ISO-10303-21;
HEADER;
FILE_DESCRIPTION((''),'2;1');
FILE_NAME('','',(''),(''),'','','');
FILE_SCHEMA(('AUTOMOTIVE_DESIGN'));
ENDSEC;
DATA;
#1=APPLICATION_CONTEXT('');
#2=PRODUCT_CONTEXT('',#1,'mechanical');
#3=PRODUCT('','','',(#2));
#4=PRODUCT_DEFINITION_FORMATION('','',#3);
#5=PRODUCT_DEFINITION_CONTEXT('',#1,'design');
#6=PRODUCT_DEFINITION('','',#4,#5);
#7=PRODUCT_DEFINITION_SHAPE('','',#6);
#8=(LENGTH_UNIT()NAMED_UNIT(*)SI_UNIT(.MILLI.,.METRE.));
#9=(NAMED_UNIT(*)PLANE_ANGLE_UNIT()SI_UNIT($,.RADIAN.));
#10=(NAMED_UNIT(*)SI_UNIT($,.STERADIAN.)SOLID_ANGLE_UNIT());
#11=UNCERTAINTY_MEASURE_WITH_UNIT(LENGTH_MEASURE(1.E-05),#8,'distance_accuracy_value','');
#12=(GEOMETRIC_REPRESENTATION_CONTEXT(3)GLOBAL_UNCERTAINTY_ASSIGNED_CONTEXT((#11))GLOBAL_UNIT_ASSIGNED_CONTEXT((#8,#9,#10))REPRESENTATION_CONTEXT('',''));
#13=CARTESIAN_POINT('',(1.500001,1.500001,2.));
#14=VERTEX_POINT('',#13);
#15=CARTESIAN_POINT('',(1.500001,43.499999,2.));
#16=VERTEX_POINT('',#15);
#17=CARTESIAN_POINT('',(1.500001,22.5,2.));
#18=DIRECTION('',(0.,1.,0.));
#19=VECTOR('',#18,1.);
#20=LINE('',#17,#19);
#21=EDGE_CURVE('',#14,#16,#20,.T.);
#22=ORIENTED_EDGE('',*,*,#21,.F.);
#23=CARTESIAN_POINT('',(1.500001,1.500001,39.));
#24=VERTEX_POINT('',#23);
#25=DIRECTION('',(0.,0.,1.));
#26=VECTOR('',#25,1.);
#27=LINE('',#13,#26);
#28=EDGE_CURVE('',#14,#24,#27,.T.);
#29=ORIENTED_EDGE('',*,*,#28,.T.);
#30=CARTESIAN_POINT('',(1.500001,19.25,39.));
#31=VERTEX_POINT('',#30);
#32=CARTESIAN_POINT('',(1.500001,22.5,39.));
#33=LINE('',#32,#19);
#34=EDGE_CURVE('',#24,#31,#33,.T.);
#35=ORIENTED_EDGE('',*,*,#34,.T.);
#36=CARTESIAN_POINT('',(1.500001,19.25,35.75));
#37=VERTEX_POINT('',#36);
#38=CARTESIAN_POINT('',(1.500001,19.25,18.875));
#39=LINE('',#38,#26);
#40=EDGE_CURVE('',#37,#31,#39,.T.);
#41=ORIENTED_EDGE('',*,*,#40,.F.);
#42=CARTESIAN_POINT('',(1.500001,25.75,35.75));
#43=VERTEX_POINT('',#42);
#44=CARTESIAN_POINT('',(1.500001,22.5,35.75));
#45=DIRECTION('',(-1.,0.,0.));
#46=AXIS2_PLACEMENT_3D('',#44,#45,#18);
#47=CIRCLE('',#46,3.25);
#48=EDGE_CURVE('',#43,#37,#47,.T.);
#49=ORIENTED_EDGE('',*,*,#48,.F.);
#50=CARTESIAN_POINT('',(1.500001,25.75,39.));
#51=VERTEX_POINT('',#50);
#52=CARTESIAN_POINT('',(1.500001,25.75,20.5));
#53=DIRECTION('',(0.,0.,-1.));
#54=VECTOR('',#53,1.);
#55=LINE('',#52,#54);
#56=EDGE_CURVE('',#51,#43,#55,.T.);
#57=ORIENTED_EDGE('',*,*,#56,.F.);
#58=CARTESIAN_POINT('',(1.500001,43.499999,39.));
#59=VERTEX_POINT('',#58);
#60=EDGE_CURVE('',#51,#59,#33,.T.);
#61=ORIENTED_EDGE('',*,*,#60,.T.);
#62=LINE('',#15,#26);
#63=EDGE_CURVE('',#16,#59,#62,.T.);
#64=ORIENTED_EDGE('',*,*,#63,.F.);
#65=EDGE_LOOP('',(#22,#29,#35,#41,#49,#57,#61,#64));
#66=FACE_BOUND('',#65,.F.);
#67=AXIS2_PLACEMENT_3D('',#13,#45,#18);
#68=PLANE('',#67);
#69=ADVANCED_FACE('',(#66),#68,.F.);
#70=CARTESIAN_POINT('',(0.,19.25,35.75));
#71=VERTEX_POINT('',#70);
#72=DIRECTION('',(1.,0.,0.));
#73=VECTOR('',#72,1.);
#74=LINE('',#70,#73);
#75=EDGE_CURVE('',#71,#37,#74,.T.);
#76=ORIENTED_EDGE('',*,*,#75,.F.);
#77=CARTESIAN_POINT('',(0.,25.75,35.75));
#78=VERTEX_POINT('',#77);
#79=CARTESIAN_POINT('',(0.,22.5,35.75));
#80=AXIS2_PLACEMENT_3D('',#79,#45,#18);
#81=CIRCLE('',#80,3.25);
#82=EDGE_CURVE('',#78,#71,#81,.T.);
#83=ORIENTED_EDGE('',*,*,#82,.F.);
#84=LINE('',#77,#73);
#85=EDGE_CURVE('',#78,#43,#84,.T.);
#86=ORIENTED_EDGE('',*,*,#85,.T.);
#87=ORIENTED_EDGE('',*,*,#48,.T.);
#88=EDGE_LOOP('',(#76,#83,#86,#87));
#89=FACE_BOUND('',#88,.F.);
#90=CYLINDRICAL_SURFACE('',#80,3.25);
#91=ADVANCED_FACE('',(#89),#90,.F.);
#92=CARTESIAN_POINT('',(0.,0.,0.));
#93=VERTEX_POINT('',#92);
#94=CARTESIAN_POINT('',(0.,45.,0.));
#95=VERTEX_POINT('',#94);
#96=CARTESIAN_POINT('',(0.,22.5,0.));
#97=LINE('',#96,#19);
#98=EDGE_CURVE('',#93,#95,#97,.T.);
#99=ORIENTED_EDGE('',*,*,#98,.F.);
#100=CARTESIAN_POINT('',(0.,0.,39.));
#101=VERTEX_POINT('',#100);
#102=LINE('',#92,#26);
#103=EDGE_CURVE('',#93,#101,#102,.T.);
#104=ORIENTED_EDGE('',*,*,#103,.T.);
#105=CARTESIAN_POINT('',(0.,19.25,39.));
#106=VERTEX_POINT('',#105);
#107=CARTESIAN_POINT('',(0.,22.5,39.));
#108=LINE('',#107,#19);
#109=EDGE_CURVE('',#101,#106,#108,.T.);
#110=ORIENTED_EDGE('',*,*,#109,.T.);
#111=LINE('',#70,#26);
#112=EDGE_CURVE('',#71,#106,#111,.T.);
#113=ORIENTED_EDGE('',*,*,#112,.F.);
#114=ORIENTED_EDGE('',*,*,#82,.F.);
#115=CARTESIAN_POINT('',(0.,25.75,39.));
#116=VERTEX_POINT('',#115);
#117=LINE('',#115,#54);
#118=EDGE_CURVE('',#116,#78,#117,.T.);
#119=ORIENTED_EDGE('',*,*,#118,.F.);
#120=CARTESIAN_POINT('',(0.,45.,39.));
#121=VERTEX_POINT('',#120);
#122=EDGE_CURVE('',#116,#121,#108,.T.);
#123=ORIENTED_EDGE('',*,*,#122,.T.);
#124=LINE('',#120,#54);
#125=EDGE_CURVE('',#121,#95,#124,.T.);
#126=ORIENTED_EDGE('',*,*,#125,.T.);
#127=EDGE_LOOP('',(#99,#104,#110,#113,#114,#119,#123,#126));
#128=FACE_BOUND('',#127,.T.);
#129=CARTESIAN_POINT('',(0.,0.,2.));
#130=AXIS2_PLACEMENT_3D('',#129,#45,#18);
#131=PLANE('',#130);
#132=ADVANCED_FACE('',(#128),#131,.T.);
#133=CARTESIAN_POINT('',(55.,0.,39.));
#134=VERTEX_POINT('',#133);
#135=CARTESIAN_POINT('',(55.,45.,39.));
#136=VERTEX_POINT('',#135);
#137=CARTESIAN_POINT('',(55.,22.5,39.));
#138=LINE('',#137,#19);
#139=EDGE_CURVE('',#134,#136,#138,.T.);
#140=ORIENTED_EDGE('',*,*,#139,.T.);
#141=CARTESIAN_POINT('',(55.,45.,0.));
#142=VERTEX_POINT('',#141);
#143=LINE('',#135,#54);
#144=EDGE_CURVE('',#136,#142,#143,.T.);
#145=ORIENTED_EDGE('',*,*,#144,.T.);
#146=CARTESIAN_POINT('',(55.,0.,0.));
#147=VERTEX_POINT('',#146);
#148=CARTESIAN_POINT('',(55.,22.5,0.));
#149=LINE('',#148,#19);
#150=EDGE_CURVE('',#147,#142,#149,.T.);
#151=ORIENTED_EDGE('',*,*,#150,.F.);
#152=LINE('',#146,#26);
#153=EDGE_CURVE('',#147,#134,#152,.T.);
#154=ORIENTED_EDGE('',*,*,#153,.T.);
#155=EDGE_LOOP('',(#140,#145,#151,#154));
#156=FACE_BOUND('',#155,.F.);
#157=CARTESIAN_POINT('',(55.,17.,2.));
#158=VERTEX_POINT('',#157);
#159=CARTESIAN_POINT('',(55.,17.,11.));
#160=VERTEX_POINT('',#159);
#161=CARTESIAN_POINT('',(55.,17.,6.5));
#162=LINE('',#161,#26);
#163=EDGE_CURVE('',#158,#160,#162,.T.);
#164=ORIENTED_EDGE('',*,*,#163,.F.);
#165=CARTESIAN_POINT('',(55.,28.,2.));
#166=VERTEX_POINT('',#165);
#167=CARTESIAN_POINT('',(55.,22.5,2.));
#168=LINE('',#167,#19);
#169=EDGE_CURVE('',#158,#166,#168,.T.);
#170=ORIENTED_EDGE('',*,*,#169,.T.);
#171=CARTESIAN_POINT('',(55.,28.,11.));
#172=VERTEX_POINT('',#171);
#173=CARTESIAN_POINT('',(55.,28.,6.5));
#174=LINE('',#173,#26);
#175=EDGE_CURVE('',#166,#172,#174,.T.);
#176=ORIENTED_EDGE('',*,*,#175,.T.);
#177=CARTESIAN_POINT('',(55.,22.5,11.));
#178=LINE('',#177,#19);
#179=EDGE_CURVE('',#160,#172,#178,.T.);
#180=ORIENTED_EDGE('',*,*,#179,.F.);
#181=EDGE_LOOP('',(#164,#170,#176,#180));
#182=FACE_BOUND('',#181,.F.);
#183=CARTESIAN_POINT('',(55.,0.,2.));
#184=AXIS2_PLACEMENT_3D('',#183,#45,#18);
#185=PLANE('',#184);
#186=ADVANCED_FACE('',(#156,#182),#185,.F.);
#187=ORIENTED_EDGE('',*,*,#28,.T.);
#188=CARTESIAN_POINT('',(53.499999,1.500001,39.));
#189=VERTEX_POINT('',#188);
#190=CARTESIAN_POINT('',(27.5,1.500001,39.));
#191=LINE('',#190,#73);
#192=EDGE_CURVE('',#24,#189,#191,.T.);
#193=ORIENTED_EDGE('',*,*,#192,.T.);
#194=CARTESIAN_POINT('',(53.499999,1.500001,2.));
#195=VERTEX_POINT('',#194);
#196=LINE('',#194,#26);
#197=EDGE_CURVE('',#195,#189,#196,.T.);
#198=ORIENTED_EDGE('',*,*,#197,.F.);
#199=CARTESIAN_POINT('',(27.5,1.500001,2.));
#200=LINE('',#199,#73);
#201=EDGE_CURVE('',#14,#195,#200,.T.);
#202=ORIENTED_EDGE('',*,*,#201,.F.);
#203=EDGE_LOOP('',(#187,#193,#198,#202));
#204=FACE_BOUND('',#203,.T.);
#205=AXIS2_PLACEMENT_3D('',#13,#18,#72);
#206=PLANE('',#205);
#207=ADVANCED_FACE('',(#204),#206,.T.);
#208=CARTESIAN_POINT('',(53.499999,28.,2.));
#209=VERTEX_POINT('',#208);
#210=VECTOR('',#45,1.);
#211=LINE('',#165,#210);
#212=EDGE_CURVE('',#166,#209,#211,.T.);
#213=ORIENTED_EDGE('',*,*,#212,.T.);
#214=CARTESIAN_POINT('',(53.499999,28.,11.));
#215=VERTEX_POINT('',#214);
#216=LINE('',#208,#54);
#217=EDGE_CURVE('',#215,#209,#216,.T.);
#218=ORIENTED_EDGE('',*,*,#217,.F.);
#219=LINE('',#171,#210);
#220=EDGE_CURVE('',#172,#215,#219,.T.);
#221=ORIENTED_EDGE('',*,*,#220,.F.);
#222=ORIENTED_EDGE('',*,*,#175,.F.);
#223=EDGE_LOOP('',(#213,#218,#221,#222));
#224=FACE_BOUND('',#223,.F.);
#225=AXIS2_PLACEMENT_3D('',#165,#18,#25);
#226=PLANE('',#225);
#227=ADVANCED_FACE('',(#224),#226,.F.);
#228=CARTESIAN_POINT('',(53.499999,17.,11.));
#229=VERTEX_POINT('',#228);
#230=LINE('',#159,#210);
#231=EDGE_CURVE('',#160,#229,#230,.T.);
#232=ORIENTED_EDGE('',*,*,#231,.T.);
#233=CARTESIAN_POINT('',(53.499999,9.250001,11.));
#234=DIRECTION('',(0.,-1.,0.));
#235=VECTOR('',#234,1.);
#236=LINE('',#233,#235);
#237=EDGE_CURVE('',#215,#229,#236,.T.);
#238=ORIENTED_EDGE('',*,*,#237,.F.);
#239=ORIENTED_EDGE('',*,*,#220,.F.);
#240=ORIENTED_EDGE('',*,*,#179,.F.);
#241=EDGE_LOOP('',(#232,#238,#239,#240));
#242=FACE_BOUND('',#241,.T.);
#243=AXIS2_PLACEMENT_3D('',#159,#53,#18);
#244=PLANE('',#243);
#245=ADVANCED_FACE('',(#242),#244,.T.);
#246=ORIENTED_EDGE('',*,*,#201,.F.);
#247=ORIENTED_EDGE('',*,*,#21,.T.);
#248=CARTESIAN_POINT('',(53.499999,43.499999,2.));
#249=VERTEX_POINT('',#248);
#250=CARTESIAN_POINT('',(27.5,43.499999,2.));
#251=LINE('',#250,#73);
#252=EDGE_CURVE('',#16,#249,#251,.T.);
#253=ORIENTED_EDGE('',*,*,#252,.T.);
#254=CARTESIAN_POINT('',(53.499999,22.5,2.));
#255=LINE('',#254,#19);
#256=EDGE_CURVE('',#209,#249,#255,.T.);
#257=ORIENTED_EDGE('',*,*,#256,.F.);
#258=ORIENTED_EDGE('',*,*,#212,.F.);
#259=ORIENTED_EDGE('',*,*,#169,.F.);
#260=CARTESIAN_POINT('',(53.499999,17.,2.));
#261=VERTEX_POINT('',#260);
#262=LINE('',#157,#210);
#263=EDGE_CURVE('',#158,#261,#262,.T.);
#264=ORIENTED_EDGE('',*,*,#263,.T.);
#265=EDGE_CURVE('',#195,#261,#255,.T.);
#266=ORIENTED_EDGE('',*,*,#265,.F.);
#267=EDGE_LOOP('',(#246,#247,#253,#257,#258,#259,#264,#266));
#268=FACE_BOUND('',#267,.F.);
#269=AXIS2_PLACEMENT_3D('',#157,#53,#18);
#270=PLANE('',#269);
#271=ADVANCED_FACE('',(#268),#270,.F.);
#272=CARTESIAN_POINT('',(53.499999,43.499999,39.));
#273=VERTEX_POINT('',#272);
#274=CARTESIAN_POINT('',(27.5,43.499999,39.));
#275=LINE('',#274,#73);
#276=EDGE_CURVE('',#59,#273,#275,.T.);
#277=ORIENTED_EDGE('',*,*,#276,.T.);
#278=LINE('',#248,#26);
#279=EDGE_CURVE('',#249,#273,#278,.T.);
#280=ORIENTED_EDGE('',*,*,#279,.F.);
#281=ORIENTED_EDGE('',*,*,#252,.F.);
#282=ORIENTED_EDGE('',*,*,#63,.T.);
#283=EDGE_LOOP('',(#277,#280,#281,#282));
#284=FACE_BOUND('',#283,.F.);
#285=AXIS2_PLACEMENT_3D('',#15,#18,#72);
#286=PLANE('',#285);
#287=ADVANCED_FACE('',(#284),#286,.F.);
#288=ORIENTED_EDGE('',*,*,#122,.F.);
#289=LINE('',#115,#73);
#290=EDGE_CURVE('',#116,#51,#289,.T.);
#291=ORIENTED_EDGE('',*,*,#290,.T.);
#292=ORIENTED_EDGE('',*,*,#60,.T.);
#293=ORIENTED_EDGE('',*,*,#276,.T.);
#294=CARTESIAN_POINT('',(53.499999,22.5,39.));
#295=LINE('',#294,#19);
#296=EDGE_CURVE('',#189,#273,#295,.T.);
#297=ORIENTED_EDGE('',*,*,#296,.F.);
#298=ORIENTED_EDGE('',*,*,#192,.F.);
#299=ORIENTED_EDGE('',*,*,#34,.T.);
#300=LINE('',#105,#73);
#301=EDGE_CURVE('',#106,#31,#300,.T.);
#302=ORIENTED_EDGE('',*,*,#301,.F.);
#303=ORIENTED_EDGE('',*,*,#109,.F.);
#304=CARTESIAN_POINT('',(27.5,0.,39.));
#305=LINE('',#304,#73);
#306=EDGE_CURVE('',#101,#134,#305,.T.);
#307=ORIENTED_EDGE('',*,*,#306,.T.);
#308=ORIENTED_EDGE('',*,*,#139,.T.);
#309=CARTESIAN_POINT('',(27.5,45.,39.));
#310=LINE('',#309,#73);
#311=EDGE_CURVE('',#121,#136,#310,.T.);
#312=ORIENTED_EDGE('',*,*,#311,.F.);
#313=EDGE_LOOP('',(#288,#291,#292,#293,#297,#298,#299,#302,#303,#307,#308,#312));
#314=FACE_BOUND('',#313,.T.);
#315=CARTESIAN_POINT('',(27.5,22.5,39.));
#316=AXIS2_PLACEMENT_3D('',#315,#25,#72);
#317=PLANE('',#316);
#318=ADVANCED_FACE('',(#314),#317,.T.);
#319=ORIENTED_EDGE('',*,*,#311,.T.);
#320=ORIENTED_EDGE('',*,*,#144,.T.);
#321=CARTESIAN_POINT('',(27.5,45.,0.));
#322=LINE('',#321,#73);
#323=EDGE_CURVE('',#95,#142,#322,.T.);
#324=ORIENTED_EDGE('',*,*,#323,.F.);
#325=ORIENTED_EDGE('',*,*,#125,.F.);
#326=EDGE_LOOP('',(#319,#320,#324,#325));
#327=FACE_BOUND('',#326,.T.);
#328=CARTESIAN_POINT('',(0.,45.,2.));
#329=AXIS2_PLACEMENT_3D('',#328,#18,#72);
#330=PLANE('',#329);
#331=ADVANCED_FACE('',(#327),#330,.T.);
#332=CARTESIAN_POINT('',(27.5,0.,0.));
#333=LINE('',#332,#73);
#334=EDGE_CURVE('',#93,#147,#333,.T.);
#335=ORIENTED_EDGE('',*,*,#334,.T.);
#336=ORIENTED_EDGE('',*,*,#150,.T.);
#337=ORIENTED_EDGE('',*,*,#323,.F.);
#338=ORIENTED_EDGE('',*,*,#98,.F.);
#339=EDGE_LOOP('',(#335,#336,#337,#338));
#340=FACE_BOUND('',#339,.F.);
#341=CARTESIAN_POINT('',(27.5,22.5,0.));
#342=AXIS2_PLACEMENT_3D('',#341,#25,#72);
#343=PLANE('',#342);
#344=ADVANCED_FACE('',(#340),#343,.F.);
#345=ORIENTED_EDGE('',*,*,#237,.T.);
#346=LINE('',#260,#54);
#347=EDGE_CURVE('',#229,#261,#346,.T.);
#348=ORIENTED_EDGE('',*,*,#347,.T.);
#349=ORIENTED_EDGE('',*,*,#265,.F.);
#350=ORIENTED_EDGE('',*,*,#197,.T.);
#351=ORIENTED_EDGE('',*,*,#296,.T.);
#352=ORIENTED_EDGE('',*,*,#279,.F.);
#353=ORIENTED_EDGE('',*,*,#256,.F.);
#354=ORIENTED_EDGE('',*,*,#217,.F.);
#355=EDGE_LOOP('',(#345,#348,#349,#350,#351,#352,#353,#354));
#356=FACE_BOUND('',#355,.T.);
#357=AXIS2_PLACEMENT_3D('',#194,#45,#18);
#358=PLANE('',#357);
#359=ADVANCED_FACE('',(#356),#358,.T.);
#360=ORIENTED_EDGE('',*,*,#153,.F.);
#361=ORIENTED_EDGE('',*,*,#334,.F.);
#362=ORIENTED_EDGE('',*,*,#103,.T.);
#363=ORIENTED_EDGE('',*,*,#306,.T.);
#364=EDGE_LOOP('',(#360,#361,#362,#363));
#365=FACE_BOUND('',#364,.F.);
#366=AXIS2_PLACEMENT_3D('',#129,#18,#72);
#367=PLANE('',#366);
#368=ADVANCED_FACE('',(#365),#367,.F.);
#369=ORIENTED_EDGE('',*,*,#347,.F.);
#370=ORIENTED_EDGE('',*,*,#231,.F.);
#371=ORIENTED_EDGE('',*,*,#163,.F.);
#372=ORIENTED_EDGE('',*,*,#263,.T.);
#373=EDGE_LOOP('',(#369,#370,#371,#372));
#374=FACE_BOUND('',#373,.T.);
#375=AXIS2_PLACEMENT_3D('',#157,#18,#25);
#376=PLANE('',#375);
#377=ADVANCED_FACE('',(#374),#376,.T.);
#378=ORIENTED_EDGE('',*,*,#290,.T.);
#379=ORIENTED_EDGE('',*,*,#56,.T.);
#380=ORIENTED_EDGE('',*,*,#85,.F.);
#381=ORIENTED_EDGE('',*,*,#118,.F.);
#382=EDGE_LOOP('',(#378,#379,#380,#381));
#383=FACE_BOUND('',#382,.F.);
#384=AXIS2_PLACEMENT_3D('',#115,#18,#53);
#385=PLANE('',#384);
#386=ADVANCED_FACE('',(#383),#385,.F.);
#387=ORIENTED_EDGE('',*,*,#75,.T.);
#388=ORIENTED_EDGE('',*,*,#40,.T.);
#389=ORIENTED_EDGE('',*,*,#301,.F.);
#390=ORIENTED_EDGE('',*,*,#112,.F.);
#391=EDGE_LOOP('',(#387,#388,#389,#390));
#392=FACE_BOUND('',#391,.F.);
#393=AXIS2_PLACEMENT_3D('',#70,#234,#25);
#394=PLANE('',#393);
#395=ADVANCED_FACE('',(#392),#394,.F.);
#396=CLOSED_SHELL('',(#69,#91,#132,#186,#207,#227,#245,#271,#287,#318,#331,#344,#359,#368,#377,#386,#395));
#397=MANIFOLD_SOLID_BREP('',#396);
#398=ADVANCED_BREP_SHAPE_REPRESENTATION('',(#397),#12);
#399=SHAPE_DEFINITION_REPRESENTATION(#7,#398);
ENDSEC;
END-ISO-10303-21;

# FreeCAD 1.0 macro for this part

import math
import FreeCAD as App
import Part
import Sketcher

V = App.Vector
Q = App.Units.Quantity


def add_polygon(sketch, points):
    """Adds a closed chain of lines whose ends are joined by coincident constraints."""
    first, n = sketch.GeometryCount, len(points)
    for a, b in zip(points, points[1:] + points[:1]):
        sketch.addGeometry(Part.LineSegment(App.Vector(*a, 0), App.Vector(*b, 0)), False)
    for i in range(n):
        sketch.addConstraint(Sketcher.Constraint("Coincident", first + i, 2, first + (i + 1) % n, 1))

doc = App.newDocument("Part")
params = doc.addObject("Spreadsheet::Sheet", "Params")
for row, (alias, value) in enumerate([
    ("sketch1_width", "55 mm"),
    ("sketch1_height", "45 mm"),
    ("pad1_length", "2 mm"),
    ("sketch2_width", "55 mm"),
    ("sketch2_height", "45 mm"),
    ("pad2_length", "37 mm"),
    ("sketch3_radius", "3.25 mm"),
    ("sketch3_height", "3.25 mm"),
    ("pocket1_length", "25 mm"),
    ("sketch4_width", "11 mm"),
    ("sketch4_height", "9 mm"),
    ("pocket2_length", "25 mm"),
], start=1):
    params.set(f"A{row}", alias)
    params.set(f"B{row}", "=" + value)
    params.setAlias(f"B{row}", alias)

body = doc.addObject("PartDesign::Body", "Body")

sketch1 = body.newObject("Sketcher::SketchObject", "Sketch")
sketch1.AttachmentSupport = (doc.getObject("XY_Plane"), [""])
sketch1.MapMode = "FlatFace"
add_polygon(sketch1, [(0, 45), (0, 0), (55, 0), (55, 45)])
sketch1.addConstraint(Sketcher.Constraint("Vertical", 0))
sketch1.addConstraint(Sketcher.Constraint("Horizontal", 1))
sketch1.addConstraint(Sketcher.Constraint("Vertical", 2))
sketch1.addConstraint(Sketcher.Constraint("Horizontal", 3))
sketch1.addConstraint(Sketcher.Constraint("Coincident", 0, 2, -1, 1))
sketch1.addConstraint(Sketcher.Constraint("DistanceX", 1, 1, 1, 2, Q("55 mm")))
sketch1.addConstraint(Sketcher.Constraint("DistanceY", 0, 2, 0, 1, Q("45 mm")))
sketch1.setExpression("Constraints[9]", "Params.sketch1_width")
sketch1.setExpression("Constraints[10]", "Params.sketch1_height")
pad1 = body.newObject("PartDesign::Pad", "Pad")
pad1.Profile = sketch1
pad1.setExpression("Length", "Params.pad1_length")

sketch2 = body.newObject("Sketcher::SketchObject", "Sketch001")
sketch2.AttachmentSupport = (doc.getObject("XY_Plane"), [""])
sketch2.MapMode = "FlatFace"
sketch2.AttachmentOffset = App.Placement(V(0, 0, 2), App.Rotation())
add_polygon(sketch2, [(0, 45), (0, 0), (55, 0), (55, 45)])
add_polygon(sketch2, [(53, 2), (2, 2), (2, 43), (53, 43)])
sketch2.addConstraint(Sketcher.Constraint("Vertical", 0))
sketch2.addConstraint(Sketcher.Constraint("Horizontal", 1))
sketch2.addConstraint(Sketcher.Constraint("Vertical", 2))
sketch2.addConstraint(Sketcher.Constraint("Horizontal", 3))
sketch2.addConstraint(Sketcher.Constraint("Horizontal", 4))
sketch2.addConstraint(Sketcher.Constraint("Vertical", 5))
sketch2.addConstraint(Sketcher.Constraint("Horizontal", 6))
sketch2.addConstraint(Sketcher.Constraint("Vertical", 7))
sketch2.addConstraint(Sketcher.Constraint("Coincident", 0, 2, -1, 1))
sketch2.addConstraint(Sketcher.Constraint("DistanceX", 1, 1, 1, 2, Q("55 mm")))
sketch2.addConstraint(Sketcher.Constraint("DistanceY", 0, 2, 0, 1, Q("45 mm")))
sketch2.addConstraint(Sketcher.Constraint("DistanceX", -1, 1, 4, 2, Q("1.500001 mm")))
sketch2.addConstraint(Sketcher.Constraint("DistanceY", -1, 1, 4, 2, Q("1.500001 mm")))
sketch2.addConstraint(Sketcher.Constraint("DistanceY", -1, 1, 5, 2, Q("43.499999 mm")))
sketch2.addConstraint(Sketcher.Constraint("DistanceX", -1, 1, 6, 2, Q("53.499999 mm")))
sketch2.setExpression("Constraints[17]", "Params.sketch2_width")
sketch2.setExpression("Constraints[18]", "Params.sketch2_height")
pad2 = body.newObject("PartDesign::Pad", "Pad001")
pad2.Profile = sketch2
pad2.setExpression("Length", "Params.pad2_length")

sketch3 = body.newObject("Sketcher::SketchObject", "Sketch002")
sketch3.AttachmentSupport = (doc.getObject("YZ_Plane"), [""])
sketch3.MapMode = "FlatFace"
sketch3.addGeometry(Part.LineSegment(V(25.8, 39, 0), V(25.8, 35.8, 0)), False)
sketch3.addGeometry(Part.ArcOfCircle(Part.Circle(V(22.5, 35.8, 0), V(0, 0, 1), 3.2), math.radians(180), math.radians(360)), False)
sketch3.addGeometry(Part.LineSegment(V(19.2, 35.8, 0), V(19.2, 39, 0)), False)
sketch3.addGeometry(Part.LineSegment(V(19.2, 39, 0), V(25.8, 39, 0)), False)
sketch3.addConstraint(Sketcher.Constraint("Tangent", 0, 2, 1, 2))
sketch3.addConstraint(Sketcher.Constraint("Tangent", 1, 1, 2, 1))
sketch3.addConstraint(Sketcher.Constraint("Coincident", 2, 2, 3, 1))
sketch3.addConstraint(Sketcher.Constraint("Coincident", 3, 2, 0, 1))
sketch3.addConstraint(Sketcher.Constraint("Vertical", 0))
sketch3.addConstraint(Sketcher.Constraint("Vertical", 2))
sketch3.addConstraint(Sketcher.Constraint("Horizontal", 3))
sketch3.addConstraint(Sketcher.Constraint("Radius", 1, Q("3.25 mm")))
sketch3.addConstraint(Sketcher.Constraint("DistanceY", -1, 1, 2, 2, Q("39 mm")))
sketch3.addConstraint(Sketcher.Constraint("DistanceY", 0, 2, 0, 1, Q("3.25 mm")))
sketch3.addConstraint(Sketcher.Constraint("DistanceX", -1, 1, 1, 3, Q("22.5 mm")))
sketch3.setExpression("Constraints[7]", "Params.sketch3_radius")
sketch3.setExpression("Constraints[9]", "Params.sketch3_height")
pocket1 = body.newObject("PartDesign::Pocket", "Pocket")
pocket1.Profile = sketch3
pocket1.setExpression("Length", "Params.pocket1_length")
pocket1.Reversed = True

sketch4 = body.newObject("Sketcher::SketchObject", "Sketch003")
sketch4.AttachmentSupport = (doc.getObject("YZ_Plane"), [""])
sketch4.MapMode = "FlatFace"
sketch4.AttachmentOffset = App.Placement(V(0, 0, 55), App.Rotation())
add_polygon(sketch4, [(17, 11), (17, 2), (28, 2), (28, 11)])
sketch4.addConstraint(Sketcher.Constraint("Vertical", 0))
sketch4.addConstraint(Sketcher.Constraint("Horizontal", 1))
sketch4.addConstraint(Sketcher.Constraint("Vertical", 2))
sketch4.addConstraint(Sketcher.Constraint("Horizontal", 3))
sketch4.addConstraint(Sketcher.Constraint("DistanceX", 1, 1, 1, 2, Q("11 mm")))
sketch4.addConstraint(Sketcher.Constraint("DistanceY", 0, 2, 0, 1, Q("9 mm")))
sketch4.addConstraint(Sketcher.Constraint("DistanceX", -1, 1, 0, 2, Q("17 mm")))
sketch4.addConstraint(Sketcher.Constraint("DistanceY", -1, 1, 0, 2, Q("2 mm")))
sketch4.setExpression("Constraints[8]", "Params.sketch4_width")
sketch4.setExpression("Constraints[9]", "Params.sketch4_height")
pocket2 = body.newObject("PartDesign::Pocket", "Pocket001")
pocket2.Profile = sketch4
pocket2.setExpression("Length", "Params.pocket2_length")

doc.recompute()
